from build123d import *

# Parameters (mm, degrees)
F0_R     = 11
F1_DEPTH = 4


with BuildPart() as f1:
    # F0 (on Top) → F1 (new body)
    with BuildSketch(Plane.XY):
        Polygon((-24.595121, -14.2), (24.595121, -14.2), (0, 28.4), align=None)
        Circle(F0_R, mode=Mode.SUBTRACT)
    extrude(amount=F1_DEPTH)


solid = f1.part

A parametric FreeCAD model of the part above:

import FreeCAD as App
import Part
import Sketcher

V = App.Vector
Q = App.Units.Quantity


def add_polygon(sketch, points):
    """Adds a closed chain of lines whose ends are joined by coincident constraints."""
    first, n = sketch.GeometryCount, len(points)
    for a, b in zip(points, points[1:] + points[:1]):
        sketch.addGeometry(Part.LineSegment(App.Vector(*a, 0), App.Vector(*b, 0)), False)
    for i in range(n):
        sketch.addConstraint(Sketcher.Constraint("Coincident", first + i, 2, first + (i + 1) % n, 1))

doc = App.newDocument("Part")
body = doc.addObject("PartDesign::Body", "Body")

# Sketch on XY plane
sketch1 = body.newObject("Sketcher::SketchObject", "Sketch")
sketch1.AttachmentSupport = (doc.getObject("XY_Plane"), [""])
sketch1.MapMode = "FlatFace"
add_polygon(sketch1, [(-25, -14), (25, -14), (0, 28)])  # lines 0-2
sketch1.addGeometry(Part.Circle(V(0, 0, 0), V(0, 0, 1), 11), False)  # 3
sketch1.addConstraint(Sketcher.Constraint("Horizontal", 0))
sketch1.addConstraint(Sketcher.Constraint("Coincident", 3, 3, -1, 1))
sketch1.addConstraint(Sketcher.Constraint("PointOnObject", 1, 2, -2))
sketch1.addConstraint(Sketcher.Constraint("Equal", 1, 2))
sketch1.addConstraint(Sketcher.Constraint("Diameter", 3, 22.0))
sketch1.addConstraint(Sketcher.Constraint("Angle", 1, Q("120 deg")))
sketch1.addConstraint(Sketcher.Constraint("DistanceY", 0, 2, -1, 1, 14.2))
sketch1.addConstraint(Sketcher.Constraint("DistanceY", -1, 1, 1, 2, 28.4))
pad1 = body.newObject("PartDesign::Pad", "Pad")
pad1.Profile = sketch1
pad1.Length = 4

doc.recompute()
